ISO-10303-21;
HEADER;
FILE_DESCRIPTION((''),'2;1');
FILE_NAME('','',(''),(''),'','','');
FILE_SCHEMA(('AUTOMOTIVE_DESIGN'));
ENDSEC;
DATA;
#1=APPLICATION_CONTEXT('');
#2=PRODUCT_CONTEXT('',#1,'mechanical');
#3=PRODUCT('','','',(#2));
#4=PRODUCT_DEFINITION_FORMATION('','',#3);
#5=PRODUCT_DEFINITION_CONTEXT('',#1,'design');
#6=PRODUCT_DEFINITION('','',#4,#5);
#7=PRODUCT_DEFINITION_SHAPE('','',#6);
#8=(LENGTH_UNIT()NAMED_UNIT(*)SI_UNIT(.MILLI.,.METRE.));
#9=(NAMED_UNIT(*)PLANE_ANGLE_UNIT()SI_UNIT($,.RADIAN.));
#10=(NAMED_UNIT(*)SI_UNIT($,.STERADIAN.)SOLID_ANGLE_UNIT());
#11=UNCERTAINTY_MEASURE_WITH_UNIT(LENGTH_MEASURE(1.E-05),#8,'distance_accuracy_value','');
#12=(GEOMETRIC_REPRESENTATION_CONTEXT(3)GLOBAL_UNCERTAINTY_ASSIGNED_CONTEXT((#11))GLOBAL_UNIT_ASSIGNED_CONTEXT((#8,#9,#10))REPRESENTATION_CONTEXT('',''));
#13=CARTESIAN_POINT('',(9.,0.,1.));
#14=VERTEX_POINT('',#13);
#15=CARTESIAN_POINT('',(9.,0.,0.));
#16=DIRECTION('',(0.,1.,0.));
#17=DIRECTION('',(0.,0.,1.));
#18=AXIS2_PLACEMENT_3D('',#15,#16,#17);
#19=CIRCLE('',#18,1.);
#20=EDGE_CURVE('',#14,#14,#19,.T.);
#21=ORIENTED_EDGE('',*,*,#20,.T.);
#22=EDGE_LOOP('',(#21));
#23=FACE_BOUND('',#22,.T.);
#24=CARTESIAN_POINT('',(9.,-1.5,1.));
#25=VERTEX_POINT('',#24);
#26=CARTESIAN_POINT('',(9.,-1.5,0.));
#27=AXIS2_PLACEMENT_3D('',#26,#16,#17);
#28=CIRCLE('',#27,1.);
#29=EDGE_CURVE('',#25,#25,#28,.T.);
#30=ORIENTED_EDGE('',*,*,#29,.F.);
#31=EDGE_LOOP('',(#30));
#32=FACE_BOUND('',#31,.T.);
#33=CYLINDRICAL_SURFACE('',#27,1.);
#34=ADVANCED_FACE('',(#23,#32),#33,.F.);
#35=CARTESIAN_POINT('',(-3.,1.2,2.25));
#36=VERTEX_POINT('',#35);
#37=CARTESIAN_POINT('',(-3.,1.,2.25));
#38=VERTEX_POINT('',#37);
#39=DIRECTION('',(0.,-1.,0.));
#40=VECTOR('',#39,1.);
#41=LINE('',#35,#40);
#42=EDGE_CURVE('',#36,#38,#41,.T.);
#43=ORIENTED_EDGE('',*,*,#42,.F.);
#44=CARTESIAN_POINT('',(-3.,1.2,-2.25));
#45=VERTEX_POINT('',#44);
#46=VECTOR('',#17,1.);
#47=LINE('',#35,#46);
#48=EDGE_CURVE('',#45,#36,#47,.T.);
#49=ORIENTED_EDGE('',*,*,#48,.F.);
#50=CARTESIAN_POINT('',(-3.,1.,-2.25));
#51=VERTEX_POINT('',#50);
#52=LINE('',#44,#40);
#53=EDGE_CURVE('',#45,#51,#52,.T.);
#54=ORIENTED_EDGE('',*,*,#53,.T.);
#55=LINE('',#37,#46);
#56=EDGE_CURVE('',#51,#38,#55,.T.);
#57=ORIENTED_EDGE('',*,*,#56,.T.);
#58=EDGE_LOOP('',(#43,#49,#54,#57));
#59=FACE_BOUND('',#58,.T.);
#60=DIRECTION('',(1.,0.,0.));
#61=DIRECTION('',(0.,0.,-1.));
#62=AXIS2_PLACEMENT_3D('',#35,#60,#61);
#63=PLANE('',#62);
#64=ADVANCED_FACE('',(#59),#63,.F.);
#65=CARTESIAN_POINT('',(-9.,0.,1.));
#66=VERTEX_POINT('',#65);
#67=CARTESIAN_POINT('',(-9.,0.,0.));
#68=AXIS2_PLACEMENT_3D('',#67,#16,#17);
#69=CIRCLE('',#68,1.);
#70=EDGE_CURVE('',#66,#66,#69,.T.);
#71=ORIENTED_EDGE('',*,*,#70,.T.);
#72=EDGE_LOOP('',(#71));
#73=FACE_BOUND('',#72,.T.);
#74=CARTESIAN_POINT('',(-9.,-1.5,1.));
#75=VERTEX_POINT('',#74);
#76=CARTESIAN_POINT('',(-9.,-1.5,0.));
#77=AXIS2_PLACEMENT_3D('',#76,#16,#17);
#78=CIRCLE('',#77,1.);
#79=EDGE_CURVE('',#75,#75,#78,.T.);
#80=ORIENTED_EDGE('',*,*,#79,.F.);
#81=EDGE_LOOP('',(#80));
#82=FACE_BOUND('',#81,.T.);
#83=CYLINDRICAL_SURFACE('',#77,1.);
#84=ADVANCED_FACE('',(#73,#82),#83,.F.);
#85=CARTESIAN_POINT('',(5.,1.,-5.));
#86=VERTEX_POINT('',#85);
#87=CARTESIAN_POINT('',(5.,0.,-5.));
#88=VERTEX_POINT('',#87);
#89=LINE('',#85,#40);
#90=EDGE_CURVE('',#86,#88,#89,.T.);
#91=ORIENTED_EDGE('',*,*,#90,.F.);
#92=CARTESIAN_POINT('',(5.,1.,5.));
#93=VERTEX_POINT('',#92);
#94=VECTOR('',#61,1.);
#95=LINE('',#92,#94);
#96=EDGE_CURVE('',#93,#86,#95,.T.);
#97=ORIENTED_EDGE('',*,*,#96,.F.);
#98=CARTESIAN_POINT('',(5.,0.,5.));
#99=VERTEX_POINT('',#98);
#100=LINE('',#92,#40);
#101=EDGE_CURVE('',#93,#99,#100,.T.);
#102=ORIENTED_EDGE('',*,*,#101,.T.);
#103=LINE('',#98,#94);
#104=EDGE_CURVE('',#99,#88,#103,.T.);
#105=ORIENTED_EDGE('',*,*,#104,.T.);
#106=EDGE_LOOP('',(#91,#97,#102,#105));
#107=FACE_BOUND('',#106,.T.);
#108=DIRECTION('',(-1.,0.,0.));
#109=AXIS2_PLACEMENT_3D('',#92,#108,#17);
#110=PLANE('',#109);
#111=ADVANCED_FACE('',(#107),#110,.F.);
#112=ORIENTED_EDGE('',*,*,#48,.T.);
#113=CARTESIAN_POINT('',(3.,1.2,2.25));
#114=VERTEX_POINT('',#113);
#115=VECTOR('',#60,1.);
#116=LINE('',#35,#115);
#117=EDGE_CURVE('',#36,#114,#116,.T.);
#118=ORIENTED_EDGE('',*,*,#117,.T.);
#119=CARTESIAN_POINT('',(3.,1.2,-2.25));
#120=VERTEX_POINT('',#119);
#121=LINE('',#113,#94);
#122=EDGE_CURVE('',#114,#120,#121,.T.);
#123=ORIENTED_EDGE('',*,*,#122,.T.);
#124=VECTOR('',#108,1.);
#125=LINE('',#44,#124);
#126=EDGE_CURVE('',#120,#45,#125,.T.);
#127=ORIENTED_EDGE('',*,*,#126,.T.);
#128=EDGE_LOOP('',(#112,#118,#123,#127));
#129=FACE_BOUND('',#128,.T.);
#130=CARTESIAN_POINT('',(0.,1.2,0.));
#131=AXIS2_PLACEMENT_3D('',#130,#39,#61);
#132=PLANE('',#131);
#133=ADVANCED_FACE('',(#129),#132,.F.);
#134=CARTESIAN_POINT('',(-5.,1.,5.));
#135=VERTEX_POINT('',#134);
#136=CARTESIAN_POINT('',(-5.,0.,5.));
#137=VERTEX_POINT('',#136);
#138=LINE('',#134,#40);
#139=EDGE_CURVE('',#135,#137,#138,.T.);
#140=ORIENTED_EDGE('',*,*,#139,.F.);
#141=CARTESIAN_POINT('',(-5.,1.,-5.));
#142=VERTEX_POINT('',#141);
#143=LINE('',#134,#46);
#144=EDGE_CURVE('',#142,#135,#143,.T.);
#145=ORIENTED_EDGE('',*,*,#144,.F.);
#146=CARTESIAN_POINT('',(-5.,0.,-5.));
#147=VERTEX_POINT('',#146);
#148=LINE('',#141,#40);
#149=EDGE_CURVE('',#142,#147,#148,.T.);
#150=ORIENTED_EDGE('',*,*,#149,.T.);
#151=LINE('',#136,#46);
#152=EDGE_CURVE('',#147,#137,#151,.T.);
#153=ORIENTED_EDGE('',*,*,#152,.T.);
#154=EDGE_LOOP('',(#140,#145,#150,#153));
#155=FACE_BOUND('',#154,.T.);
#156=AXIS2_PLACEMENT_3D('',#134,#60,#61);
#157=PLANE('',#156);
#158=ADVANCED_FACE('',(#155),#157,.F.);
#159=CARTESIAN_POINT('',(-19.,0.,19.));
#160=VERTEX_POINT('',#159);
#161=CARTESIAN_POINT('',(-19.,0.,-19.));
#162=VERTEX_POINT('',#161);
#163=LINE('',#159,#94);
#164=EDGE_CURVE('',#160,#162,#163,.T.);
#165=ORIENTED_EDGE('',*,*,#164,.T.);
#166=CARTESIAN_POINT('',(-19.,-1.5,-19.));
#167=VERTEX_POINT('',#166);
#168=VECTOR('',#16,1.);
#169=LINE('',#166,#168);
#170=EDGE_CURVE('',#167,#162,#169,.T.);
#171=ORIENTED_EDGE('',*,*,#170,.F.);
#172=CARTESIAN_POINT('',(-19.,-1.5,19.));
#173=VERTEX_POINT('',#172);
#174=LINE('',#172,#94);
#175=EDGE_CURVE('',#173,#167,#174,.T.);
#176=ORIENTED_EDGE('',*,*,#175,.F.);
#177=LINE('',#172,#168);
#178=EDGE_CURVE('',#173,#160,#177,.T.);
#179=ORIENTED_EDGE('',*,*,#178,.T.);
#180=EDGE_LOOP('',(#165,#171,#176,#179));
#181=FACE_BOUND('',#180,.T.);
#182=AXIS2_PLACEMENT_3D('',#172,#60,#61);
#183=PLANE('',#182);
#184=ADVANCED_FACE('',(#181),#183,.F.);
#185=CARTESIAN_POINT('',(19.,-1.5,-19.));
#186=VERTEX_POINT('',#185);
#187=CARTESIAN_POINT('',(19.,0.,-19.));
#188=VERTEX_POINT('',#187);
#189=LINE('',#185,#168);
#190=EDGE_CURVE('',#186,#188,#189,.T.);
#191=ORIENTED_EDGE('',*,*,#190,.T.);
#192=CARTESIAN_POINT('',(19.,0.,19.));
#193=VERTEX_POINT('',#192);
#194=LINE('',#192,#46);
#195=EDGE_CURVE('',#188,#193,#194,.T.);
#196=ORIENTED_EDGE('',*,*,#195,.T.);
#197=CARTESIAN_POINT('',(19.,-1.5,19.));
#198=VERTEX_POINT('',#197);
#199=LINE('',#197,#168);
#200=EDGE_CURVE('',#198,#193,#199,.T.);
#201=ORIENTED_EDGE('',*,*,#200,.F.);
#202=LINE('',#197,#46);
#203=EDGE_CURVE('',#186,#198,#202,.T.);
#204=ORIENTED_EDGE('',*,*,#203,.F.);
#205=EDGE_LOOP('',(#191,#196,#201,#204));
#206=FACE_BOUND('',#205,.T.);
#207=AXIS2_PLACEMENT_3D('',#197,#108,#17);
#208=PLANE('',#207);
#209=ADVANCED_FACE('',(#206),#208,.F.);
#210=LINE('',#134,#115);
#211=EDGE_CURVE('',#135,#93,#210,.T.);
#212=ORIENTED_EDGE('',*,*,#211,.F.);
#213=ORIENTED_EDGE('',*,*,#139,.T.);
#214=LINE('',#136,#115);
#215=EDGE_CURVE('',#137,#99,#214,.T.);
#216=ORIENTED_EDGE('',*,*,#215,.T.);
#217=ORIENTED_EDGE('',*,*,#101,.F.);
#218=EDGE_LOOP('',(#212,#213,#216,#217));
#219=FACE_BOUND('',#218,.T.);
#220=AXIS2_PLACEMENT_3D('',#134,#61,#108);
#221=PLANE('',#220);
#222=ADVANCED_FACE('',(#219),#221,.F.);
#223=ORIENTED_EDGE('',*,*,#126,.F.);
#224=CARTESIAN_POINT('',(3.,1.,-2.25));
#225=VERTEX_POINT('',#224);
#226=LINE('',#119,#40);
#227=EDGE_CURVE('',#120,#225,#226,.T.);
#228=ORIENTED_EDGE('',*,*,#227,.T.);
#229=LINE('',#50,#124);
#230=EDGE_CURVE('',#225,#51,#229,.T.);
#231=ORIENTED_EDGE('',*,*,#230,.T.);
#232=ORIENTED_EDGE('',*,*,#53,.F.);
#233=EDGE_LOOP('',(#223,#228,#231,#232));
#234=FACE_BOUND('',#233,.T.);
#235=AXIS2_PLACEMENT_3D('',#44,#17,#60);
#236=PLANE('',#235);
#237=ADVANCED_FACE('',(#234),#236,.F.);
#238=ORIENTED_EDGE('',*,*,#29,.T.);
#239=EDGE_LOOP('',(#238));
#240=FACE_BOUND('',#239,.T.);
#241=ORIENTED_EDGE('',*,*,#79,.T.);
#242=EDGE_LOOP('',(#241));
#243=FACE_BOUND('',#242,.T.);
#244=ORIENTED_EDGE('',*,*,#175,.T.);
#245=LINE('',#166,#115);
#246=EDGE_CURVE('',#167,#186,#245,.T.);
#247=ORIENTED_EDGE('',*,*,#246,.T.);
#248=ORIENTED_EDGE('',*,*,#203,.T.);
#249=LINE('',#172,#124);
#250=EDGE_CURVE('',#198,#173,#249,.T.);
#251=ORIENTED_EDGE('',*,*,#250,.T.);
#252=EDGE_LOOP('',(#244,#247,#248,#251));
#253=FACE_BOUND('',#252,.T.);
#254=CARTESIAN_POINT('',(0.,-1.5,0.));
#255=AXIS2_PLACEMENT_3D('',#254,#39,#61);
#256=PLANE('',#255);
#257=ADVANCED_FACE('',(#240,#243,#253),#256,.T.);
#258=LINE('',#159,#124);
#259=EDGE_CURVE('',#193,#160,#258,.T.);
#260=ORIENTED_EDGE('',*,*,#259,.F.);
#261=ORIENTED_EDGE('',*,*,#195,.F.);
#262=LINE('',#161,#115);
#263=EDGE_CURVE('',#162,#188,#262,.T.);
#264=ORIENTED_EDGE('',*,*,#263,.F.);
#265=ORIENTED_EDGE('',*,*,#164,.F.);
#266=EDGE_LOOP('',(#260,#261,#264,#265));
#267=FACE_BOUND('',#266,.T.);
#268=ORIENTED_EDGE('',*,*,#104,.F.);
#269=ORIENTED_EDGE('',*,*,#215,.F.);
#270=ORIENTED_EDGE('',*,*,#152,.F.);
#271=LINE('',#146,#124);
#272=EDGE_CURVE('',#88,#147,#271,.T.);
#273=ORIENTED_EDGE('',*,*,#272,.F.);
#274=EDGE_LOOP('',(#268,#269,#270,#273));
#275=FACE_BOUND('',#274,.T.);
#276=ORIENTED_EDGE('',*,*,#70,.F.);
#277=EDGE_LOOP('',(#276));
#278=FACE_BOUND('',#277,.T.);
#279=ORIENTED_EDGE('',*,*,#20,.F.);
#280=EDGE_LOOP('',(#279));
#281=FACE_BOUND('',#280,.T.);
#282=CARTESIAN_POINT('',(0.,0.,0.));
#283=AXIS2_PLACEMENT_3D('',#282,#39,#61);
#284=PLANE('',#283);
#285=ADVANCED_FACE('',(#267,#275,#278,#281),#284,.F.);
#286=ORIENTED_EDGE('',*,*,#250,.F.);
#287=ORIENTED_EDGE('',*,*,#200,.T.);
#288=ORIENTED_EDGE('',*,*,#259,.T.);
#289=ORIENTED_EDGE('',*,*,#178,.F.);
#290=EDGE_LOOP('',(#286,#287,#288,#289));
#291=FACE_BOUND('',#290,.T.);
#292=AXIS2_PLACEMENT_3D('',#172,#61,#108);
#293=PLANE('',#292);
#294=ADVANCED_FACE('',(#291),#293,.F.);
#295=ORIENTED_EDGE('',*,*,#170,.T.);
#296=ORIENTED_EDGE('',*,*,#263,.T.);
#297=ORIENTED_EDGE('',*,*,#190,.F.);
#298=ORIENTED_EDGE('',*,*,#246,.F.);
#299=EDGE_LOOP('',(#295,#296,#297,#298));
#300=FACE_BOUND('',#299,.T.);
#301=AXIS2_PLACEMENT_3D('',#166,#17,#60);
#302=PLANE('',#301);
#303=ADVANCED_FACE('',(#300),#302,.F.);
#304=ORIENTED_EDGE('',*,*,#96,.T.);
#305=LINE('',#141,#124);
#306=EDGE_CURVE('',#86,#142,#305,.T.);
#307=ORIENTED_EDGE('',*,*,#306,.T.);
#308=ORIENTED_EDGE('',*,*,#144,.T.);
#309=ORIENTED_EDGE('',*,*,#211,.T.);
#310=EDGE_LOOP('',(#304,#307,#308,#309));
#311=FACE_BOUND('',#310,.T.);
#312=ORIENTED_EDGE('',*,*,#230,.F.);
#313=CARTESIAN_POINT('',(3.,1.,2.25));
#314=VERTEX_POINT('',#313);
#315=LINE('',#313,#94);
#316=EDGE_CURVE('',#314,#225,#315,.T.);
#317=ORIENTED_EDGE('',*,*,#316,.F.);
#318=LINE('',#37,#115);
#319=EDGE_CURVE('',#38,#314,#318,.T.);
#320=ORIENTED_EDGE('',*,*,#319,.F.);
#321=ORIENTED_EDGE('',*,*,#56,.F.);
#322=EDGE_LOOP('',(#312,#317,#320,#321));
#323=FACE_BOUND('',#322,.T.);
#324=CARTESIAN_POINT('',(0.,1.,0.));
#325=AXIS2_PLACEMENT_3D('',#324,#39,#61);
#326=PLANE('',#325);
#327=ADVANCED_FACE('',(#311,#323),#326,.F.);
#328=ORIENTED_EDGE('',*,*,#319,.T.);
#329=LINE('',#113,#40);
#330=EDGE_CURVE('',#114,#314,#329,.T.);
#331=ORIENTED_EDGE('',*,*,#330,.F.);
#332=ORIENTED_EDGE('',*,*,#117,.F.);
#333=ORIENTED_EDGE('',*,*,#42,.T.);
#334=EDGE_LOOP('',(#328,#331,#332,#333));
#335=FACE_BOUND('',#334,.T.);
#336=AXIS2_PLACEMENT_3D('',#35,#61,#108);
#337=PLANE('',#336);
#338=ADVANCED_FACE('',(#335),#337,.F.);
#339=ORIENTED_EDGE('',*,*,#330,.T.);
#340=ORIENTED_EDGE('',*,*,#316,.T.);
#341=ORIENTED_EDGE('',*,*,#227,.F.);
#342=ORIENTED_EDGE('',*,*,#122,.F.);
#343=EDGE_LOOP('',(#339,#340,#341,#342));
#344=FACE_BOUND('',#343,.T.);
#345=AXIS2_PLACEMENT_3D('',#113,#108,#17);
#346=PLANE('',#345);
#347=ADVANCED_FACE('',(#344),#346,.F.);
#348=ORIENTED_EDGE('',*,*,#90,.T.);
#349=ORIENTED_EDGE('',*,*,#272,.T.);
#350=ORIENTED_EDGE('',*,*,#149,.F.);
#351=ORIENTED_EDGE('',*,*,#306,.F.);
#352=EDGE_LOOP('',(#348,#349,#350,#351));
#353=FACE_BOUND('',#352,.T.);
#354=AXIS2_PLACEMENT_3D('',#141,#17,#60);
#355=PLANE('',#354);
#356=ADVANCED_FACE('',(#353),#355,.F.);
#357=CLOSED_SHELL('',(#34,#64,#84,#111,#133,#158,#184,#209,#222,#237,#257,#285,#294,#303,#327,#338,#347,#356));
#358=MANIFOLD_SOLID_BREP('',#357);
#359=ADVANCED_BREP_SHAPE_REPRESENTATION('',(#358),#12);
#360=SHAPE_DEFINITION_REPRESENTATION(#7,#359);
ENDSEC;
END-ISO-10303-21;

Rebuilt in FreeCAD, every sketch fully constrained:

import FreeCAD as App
import Part
import Sketcher
from FreeCAD import Vector
Q = App.Units.Quantity

doc = App.newDocument("Part")
body = doc.addObject("PartDesign::Body", "Body")

sketch1 = doc.addObject("Sketcher::SketchObject", "Sketch")
body.addObject(sketch1)
sketch1.AttachmentSupport = (doc.XZ_Plane, [""])
sketch1.MapMode = "FlatFace"
sketch1.addGeometry(Part.LineSegment(Vector(-5, -5, 0), Vector(-5, 5, 0)), False)
sketch1.addGeometry(Part.LineSegment(Vector(-5, 5, 0), Vector(5, 5, 0)), False)
sketch1.addGeometry(Part.LineSegment(Vector(5, 5, 0), Vector(5, -5, 0)), False)
sketch1.addGeometry(Part.LineSegment(Vector(5, -5, 0), Vector(-5, -5, 0)), False)
sketch1.addConstraint(Sketcher.Constraint("Coincident", 0, 2, 1, 1))
sketch1.addConstraint(Sketcher.Constraint("Coincident", 1, 2, 2, 1))
sketch1.addConstraint(Sketcher.Constraint("Coincident", 2, 2, 3, 1))
sketch1.addConstraint(Sketcher.Constraint("Coincident", 3, 2, 0, 1))
sketch1.addConstraint(Sketcher.Constraint("Vertical", 0))
sketch1.addConstraint(Sketcher.Constraint("Horizontal", 1))
sketch1.addConstraint(Sketcher.Constraint("Vertical", 2))
sketch1.addConstraint(Sketcher.Constraint("Horizontal", 3))
sketch1.addConstraint(Sketcher.Constraint("Symmetric", 0, 2, 2, 2, -1, 1))
sketch1.addConstraint(Sketcher.Constraint("Equal", 3, 0))
sketch1.addConstraint(Sketcher.Constraint("DistanceX", 1, 1, 1, 2, Q("10 mm")))
pad1 = doc.addObject("PartDesign::Pad", "Pad")
body.addObject(pad1)
pad1.Profile = sketch1
pad1.Length = 1
pad1.Reversed = True

sketch2 = doc.addObject("Sketcher::SketchObject", "Sketch001")
body.addObject(sketch2)
sketch2.AttachmentSupport = (doc.XZ_Plane, [""])
sketch2.MapMode = "FlatFace"
sketch2.AttachmentOffset = App.Placement(Vector(0, 0, -1), App.Rotation())
sketch2.addGeometry(Part.LineSegment(Vector(-3, -2.2, 0), Vector(-3, 2.2, 0)), False)
sketch2.addGeometry(Part.LineSegment(Vector(-3, 2.2, 0), Vector(3, 2.2, 0)), False)
sketch2.addGeometry(Part.LineSegment(Vector(3, 2.2, 0), Vector(3, -2.2, 0)), False)
sketch2.addGeometry(Part.LineSegment(Vector(3, -2.2, 0), Vector(-3, -2.2, 0)), False)
sketch2.addConstraint(Sketcher.Constraint("Coincident", 0, 2, 1, 1))
sketch2.addConstraint(Sketcher.Constraint("Coincident", 1, 2, 2, 1))
sketch2.addConstraint(Sketcher.Constraint("Coincident", 2, 2, 3, 1))
sketch2.addConstraint(Sketcher.Constraint("Coincident", 3, 2, 0, 1))
sketch2.addConstraint(Sketcher.Constraint("Vertical", 0))
sketch2.addConstraint(Sketcher.Constraint("Horizontal", 1))
sketch2.addConstraint(Sketcher.Constraint("Vertical", 2))
sketch2.addConstraint(Sketcher.Constraint("Horizontal", 3))
sketch2.addConstraint(Sketcher.Constraint("Symmetric", 0, 2, 2, 2, -1, 1))
sketch2.addConstraint(Sketcher.Constraint("DistanceX", 1, 1, 1, 2, Q("6 mm")))
sketch2.addConstraint(Sketcher.Constraint("DistanceY", 0, 1, 0, 2, Q("4.5 mm")))
pad2 = doc.addObject("PartDesign::Pad", "Pad001")
body.addObject(pad2)
pad2.Profile = sketch2
pad2.Length = 0.2
pad2.Reversed = True

sketch3 = doc.addObject("Sketcher::SketchObject", "Sketch002")
body.addObject(sketch3)
sketch3.AttachmentSupport = (doc.XZ_Plane, [""])
sketch3.MapMode = "FlatFace"
sketch3.addGeometry(Part.LineSegment(Vector(-19, 19, 0), Vector(-19, -19, 0)), False)
sketch3.addGeometry(Part.LineSegment(Vector(-19, -19, 0), Vector(19, -19, 0)), False)
sketch3.addGeometry(Part.LineSegment(Vector(19, -19, 0), Vector(19, 19, 0)), False)
sketch3.addGeometry(Part.LineSegment(Vector(19, 19, 0), Vector(-19, 19, 0)), False)
sketch3.addConstraint(Sketcher.Constraint("Coincident", 0, 2, 1, 1))
sketch3.addConstraint(Sketcher.Constraint("Coincident", 1, 2, 2, 1))
sketch3.addConstraint(Sketcher.Constraint("Coincident", 2, 2, 3, 1))
sketch3.addConstraint(Sketcher.Constraint("Coincident", 3, 2, 0, 1))
sketch3.addConstraint(Sketcher.Constraint("Vertical", 0))
sketch3.addConstraint(Sketcher.Constraint("Horizontal", 1))
sketch3.addConstraint(Sketcher.Constraint("Vertical", 2))
sketch3.addConstraint(Sketcher.Constraint("Horizontal", 3))
sketch3.addConstraint(Sketcher.Constraint("Symmetric", 0, 2, 2, 2, -1, 1))
sketch3.addConstraint(Sketcher.Constraint("Equal", 3, 0))
sketch3.addConstraint(Sketcher.Constraint("DistanceX", 1, 1, 1, 2, Q("38 mm")))
pad3 = doc.addObject("PartDesign::Pad", "Pad002")
body.addObject(pad3)
pad3.Profile = sketch3
pad3.Length = 1.5

sketch4 = doc.addObject("Sketcher::SketchObject", "Sketch003")
body.addObject(sketch4)
sketch4.AttachmentSupport = (doc.XZ_Plane, [""])
sketch4.MapMode = "FlatFace"
sketch4.addGeometry(Part.Circle(Vector(9, 0, 0), Vector(0, 0, 1), 1), False)
sketch4.addGeometry(Part.Circle(Vector(-9, 0, 0), Vector(0, 0, 1), 1), False)
sketch4.addConstraint(Sketcher.Constraint("Equal", 0, 1))
sketch4.addConstraint(Sketcher.Constraint("Symmetric", 0, 3, 1, 3, -1, 1))
sketch4.addConstraint(Sketcher.Constraint("PointOnObject", 0, 3, -1))
sketch4.addConstraint(Sketcher.Constraint("Diameter", 0, Q("2 mm")))
sketch4.addConstraint(Sketcher.Constraint("DistanceX", -1, 1, 0, 3, Q("9 mm")))
pocket1 = doc.addObject("PartDesign::Pocket", "Pocket")
body.addObject(pocket1)
pocket1.Profile = sketch4
pocket1.Type = "ThroughAll"
pocket1.Reversed = True

doc.recompute()
